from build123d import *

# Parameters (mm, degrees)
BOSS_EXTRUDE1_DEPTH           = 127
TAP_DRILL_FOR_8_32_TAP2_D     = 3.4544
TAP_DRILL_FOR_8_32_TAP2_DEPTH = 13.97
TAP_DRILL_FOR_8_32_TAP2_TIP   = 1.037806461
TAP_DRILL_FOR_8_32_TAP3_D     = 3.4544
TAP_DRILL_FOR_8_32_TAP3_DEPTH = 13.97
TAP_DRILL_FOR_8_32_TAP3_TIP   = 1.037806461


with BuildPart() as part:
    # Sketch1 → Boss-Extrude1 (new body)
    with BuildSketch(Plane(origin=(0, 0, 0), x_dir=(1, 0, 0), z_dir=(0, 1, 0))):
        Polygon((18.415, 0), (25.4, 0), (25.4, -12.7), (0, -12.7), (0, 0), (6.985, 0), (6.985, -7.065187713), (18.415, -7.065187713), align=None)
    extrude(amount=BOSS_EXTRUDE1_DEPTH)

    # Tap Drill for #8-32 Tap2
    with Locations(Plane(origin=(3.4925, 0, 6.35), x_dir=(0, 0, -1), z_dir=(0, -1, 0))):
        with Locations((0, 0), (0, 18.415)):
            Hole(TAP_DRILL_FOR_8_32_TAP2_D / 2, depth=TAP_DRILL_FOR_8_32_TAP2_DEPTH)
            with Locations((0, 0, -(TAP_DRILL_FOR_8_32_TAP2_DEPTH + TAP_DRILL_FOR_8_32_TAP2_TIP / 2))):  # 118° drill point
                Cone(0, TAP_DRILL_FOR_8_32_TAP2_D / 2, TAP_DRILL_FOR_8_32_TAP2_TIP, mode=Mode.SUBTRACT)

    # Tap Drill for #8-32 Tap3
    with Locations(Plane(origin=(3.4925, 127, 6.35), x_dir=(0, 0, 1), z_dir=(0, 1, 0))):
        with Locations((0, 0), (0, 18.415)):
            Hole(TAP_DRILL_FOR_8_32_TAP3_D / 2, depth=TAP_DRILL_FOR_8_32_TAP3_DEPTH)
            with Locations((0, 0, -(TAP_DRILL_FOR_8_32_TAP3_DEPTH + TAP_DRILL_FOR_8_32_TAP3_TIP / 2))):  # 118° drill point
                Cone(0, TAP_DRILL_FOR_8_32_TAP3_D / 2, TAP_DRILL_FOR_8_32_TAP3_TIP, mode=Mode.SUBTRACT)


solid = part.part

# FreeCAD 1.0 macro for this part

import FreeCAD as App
import Part
import Sketcher
from FreeCAD import Vector
Q = App.Units.Quantity


def add_polygon(sketch, points):
    """Adds a closed chain of lines whose ends are joined by coincident constraints."""
    first, n = sketch.GeometryCount, len(points)
    for a, b in zip(points, points[1:] + points[:1]):
        sketch.addGeometry(Part.LineSegment(App.Vector(*a, 0), App.Vector(*b, 0)), False)
    for i in range(n):
        sketch.addConstraint(Sketcher.Constraint("Coincident", first + i, 2, first + (i + 1) % n, 1))

doc = App.newDocument("Part")
params = doc.addObject("Spreadsheet::Sheet", "Params")
for row, (alias, value) in enumerate([
    ("sketch1_width", "1 in"),
    ("sketch1_height", "0.5 in"),
    ("sketch1_width2", "0.45 in"),
    ("pad1_length", "5 in"),
    ("sketch2_diameter", "0.136 in"),
    ("hole_diameter", "0.136 in"),
    ("hole_depth", "0.55 in"),
    ("sketch3_diameter", "0.136 in"),
    ("hole2_diameter", "0.136 in"),
    ("hole2_depth", "0.55 in"),
], start=1):
    params.set(f"A{row}", alias)
    params.set(f"B{row}", "=" + value)
    params.setAlias(f"B{row}", alias)

body = doc.addObject("PartDesign::Body", "Body")

sketch1 = body.newObject("Sketcher::SketchObject", "Sketch")
sketch1.AttachmentSupport = (doc.getObject("XZ_Plane"), [""])
sketch1.MapMode = "FlatFace"
add_polygon(sketch1, [(25.4, 0), (18.415, 0), (18.415, 7.065188), (6.985, 7.065188), (6.985, 0), (0, 0), (0, 12.7), (25.4, 12.7)])
sketch1.addConstraint(Sketcher.Constraint("Horizontal", 0))
sketch1.addConstraint(Sketcher.Constraint("Vertical", 1))
sketch1.addConstraint(Sketcher.Constraint("Horizontal", 2))
sketch1.addConstraint(Sketcher.Constraint("Vertical", 3))
sketch1.addConstraint(Sketcher.Constraint("Horizontal", 4))
sketch1.addConstraint(Sketcher.Constraint("Vertical", 5))
sketch1.addConstraint(Sketcher.Constraint("Horizontal", 6))
sketch1.addConstraint(Sketcher.Constraint("Vertical", 7))
sketch1.addConstraint(Sketcher.Constraint("Coincident", 4, 2, -1, 1))
sketch1.addConstraint(Sketcher.Constraint("PointOnObject", 0, 2, -1))
sketch1.addConstraint(Sketcher.Constraint("Equal", 0, 4))
sketch1.addConstraint(Sketcher.Constraint("DistanceX", 6, 1, 6, 2, Q("1 in")))
sketch1.addConstraint(Sketcher.Constraint("DistanceY", 5, 1, 5, 2, Q("0.5 in")))
sketch1.addConstraint(Sketcher.Constraint("DistanceX", 2, 2, 2, 1, Q("0.45 in")))
sketch1.addConstraint(Sketcher.Constraint("DistanceY", 1, 1, 1, 2, Q("7.065188 mm")))
sketch1.setExpression("Constraints[19]", "Params.sketch1_width")
sketch1.setExpression("Constraints[20]", "Params.sketch1_height")
sketch1.setExpression("Constraints[21]", "Params.sketch1_width2")
pad1 = body.newObject("PartDesign::Pad", "Pad")
pad1.Profile = sketch1
pad1.setExpression("Length", "Params.pad1_length")
pad1.Reversed = True

sketch2 = body.newObject("Sketcher::SketchObject", "Sketch001")
sketch2.AttachmentSupport = (doc.getObject("XZ_Plane"), [""])
sketch2.MapMode = "FlatFace"
sketch2.addGeometry(Part.Circle(Vector(3.4925, 6.35, 0), Vector(0, 0, 1), 1.7272), False)
sketch2.addGeometry(Part.Circle(Vector(21.9075, 6.35, 0), Vector(0, 0, 1), 1.7272), False)
sketch2.addConstraint(Sketcher.Constraint("Equal", 0, 1))
sketch2.addConstraint(Sketcher.Constraint("Horizontal", 0, 3, 1, 3))
sketch2.addConstraint(Sketcher.Constraint("Diameter", 0, Q("0.136 in")))
sketch2.addConstraint(Sketcher.Constraint("DistanceY", -1, 1, 0, 3, Q("0.25 in")))
sketch2.addConstraint(Sketcher.Constraint("DistanceX", 0, 3, 1, 3, Q("0.725 in")))
sketch2.addConstraint(Sketcher.Constraint("DistanceX", -1, 1, 0, 3, Q("0.1375 in")))
sketch2.setExpression("Constraints[2]", "Params.sketch2_diameter")
doc.recompute()
hole = body.newObject("PartDesign::Hole", "Hole")
hole.Profile = sketch2
hole.ThreadType = "None"
hole.setExpression("Diameter", "Params.hole_diameter")
hole.DepthType = "Dimension"
hole.setExpression("Depth", "Params.hole_depth")
hole.DrillPoint = "Angled"
hole.DrillPointAngle = 118

sketch3 = body.newObject("Sketcher::SketchObject", "Sketch002")
sketch3.AttachmentSupport = (doc.getObject("XZ_Plane"), [""])
sketch3.MapMode = "FlatFace"
sketch3.AttachmentOffset = App.Placement(Vector(0, 0, -5 * 25.4), App.Rotation())
sketch3.addGeometry(Part.Circle(Vector(3.4925, 6.35, 0), Vector(0, 0, 1), 1.7272), False)
sketch3.addGeometry(Part.Circle(Vector(21.9075, 6.35, 0), Vector(0, 0, 1), 1.7272), False)
sketch3.addConstraint(Sketcher.Constraint("Equal", 0, 1))
sketch3.addConstraint(Sketcher.Constraint("Horizontal", 0, 3, 1, 3))
sketch3.addConstraint(Sketcher.Constraint("Diameter", 0, Q("0.136 in")))
sketch3.addConstraint(Sketcher.Constraint("DistanceY", -1, 1, 0, 3, Q("0.25 in")))
sketch3.addConstraint(Sketcher.Constraint("DistanceX", 0, 3, 1, 3, Q("0.725 in")))
sketch3.addConstraint(Sketcher.Constraint("DistanceX", -1, 1, 0, 3, Q("0.1375 in")))
sketch3.setExpression("Constraints[2]", "Params.sketch3_diameter")
doc.recompute()
hole2 = body.newObject("PartDesign::Hole", "Hole001")
hole2.Profile = sketch3
hole2.ThreadType = "None"
hole2.setExpression("Diameter", "Params.hole2_diameter")
hole2.DepthType = "Dimension"
hole2.setExpression("Depth", "Params.hole2_depth")
hole2.DrillPoint = "Angled"
hole2.DrillPointAngle = 118
hole2.Reversed = True

doc.recompute()
